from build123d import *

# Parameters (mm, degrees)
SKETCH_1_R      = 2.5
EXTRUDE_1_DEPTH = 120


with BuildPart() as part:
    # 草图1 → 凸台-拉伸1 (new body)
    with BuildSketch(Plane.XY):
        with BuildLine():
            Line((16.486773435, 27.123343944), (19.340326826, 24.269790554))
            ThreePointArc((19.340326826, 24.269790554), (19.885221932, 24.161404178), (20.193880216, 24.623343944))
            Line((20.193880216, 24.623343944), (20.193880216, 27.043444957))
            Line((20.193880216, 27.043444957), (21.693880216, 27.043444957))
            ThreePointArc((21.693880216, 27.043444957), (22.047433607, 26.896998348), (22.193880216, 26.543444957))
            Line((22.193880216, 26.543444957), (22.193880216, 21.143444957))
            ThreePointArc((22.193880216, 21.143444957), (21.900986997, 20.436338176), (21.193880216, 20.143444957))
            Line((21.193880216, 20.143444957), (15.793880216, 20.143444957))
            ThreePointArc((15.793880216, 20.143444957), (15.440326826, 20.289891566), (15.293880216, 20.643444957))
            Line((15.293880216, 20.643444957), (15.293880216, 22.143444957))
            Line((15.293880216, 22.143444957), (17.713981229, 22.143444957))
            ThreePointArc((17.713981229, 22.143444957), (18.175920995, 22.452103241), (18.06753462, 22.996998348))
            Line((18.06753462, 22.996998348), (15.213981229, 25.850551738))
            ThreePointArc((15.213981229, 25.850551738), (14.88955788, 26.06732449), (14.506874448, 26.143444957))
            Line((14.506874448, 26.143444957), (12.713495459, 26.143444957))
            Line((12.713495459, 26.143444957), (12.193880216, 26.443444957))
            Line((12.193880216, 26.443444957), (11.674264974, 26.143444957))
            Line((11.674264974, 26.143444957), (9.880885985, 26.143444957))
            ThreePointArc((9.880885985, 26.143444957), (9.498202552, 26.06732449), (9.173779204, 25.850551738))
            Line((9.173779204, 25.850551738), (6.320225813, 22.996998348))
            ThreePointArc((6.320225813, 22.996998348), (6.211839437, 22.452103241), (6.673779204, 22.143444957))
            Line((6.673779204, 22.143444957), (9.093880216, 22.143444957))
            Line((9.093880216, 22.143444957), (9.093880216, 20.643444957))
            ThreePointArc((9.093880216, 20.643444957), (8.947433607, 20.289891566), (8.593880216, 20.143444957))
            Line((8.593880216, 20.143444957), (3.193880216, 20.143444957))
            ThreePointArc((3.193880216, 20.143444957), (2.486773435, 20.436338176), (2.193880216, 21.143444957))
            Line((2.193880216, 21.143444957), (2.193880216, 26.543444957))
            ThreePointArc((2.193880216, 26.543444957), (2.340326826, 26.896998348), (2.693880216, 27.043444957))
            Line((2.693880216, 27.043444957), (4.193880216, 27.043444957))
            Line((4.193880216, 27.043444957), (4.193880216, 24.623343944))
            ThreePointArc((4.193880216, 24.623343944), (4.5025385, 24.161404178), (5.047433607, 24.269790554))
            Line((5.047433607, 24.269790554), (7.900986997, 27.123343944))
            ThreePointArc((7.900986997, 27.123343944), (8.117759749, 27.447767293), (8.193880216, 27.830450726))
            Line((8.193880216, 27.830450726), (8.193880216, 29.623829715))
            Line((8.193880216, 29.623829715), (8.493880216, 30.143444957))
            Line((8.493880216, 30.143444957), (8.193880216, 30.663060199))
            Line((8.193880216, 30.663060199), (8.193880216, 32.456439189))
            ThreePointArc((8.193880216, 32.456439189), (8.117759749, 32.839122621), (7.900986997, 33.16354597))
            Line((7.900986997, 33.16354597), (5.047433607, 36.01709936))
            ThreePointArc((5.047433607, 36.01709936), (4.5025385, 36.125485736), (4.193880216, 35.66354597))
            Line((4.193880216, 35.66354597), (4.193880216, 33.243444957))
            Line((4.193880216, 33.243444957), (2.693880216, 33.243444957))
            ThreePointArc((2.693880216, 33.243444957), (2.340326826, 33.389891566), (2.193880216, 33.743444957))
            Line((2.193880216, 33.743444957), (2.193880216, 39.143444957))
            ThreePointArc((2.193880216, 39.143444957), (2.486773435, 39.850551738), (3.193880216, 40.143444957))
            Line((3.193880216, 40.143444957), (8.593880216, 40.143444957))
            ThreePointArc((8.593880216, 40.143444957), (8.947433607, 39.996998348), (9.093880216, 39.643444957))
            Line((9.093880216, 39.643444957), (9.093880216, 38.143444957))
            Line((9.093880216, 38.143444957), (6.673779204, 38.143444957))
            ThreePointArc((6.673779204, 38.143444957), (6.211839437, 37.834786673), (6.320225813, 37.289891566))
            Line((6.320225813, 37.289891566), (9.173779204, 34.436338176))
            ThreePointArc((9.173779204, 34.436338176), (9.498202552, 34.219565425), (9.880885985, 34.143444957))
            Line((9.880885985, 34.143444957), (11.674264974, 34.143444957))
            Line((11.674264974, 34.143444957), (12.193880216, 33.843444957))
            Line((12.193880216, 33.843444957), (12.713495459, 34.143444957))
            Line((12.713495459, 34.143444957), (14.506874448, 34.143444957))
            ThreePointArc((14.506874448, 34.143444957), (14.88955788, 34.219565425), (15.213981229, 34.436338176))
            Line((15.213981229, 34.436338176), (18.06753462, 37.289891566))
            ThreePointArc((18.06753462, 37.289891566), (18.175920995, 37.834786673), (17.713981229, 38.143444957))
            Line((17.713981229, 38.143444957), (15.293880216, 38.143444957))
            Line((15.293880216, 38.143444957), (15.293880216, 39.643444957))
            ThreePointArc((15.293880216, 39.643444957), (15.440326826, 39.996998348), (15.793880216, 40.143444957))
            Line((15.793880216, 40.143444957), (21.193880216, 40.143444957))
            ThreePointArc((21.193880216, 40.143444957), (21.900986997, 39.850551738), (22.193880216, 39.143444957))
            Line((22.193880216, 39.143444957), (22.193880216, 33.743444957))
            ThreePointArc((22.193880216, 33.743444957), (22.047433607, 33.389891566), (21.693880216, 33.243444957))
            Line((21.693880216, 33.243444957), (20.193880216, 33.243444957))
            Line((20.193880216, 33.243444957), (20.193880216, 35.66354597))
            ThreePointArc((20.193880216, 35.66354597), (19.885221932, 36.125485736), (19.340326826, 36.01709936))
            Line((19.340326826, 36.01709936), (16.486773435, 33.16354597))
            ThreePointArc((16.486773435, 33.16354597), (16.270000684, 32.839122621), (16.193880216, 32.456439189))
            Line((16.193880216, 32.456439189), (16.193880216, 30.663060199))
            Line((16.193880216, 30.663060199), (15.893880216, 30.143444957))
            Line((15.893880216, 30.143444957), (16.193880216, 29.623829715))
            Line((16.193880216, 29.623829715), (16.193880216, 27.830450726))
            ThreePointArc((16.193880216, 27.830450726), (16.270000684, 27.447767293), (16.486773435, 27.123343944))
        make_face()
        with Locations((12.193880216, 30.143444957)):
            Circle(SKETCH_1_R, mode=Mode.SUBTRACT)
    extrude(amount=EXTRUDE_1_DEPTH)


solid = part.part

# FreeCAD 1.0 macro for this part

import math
import FreeCAD as App
import Part
import Sketcher
from FreeCAD import Vector
Q = App.Units.Quantity

doc = App.newDocument("Part")
body = doc.addObject("PartDesign::Body", "Body")

# Sketch on XY plane
sketch1 = body.newObject("Sketcher::SketchObject", "Sketch")
sketch1.AttachmentSupport = (doc.getObject("XY_Plane"), [""])
sketch1.MapMode = "FlatFace"
sketch1.addGeometry(Part.LineSegment(Vector(19.34, 24.27, 0), Vector(16.49, 27.12, 0)), False)
sketch1.addGeometry(Part.ArcOfCircle(Part.Circle(Vector(17.19, 27.83, 0), Vector(0, 0, 1), 1), math.radians(-180), math.radians(-135)), False)
sketch1.addGeometry(Part.LineSegment(Vector(16.19, 27.83, 0), Vector(16.19, 29.62, 0)), False)
sketch1.addGeometry(Part.LineSegment(Vector(16.19, 29.62, 0), Vector(15.89, 30.14, 0)), False)
sketch1.addGeometry(Part.LineSegment(Vector(15.89, 30.14, 0), Vector(16.19, 30.66, 0)), False)
sketch1.addGeometry(Part.LineSegment(Vector(16.19, 30.66, 0), Vector(16.19, 32.46, 0)), False)
sketch1.addGeometry(Part.ArcOfCircle(Part.Circle(Vector(17.19, 32.46, 0), Vector(0, 0, 1), 1), math.radians(135), math.radians(180)), False)
sketch1.addGeometry(Part.LineSegment(Vector(16.49, 33.16, 0), Vector(19.34, 36.02, 0)), False)
sketch1.addGeometry(Part.ArcOfCircle(Part.Circle(Vector(19.69, 35.66, 0), Vector(0, 0, 1), 0.5), math.radians(0), math.radians(135)), False)
sketch1.addGeometry(Part.LineSegment(Vector(20.19, 35.66, 0), Vector(20.19, 33.24, 0)), False)
sketch1.addGeometry(Part.LineSegment(Vector(20.19, 33.24, 0), Vector(21.69, 33.24, 0)), False)
sketch1.addGeometry(Part.ArcOfCircle(Part.Circle(Vector(21.69, 33.74, 0), Vector(0, 0, 1), 0.5), math.radians(-90), math.radians(0)), False)
sketch1.addGeometry(Part.LineSegment(Vector(22.19, 33.74, 0), Vector(22.19, 39.14, 0)), False)
sketch1.addGeometry(Part.ArcOfCircle(Part.Circle(Vector(21.19, 39.14, 0), Vector(0, 0, 1), 1), math.radians(0), math.radians(90)), False)
sketch1.addGeometry(Part.LineSegment(Vector(21.19, 40.14, 0), Vector(15.79, 40.14, 0)), False)
sketch1.addGeometry(Part.ArcOfCircle(Part.Circle(Vector(15.79, 39.64, 0), Vector(0, 0, 1), 0.5), math.radians(90), math.radians(180)), False)
sketch1.addGeometry(Part.LineSegment(Vector(15.29, 39.64, 0), Vector(15.29, 38.14, 0)), False)
sketch1.addGeometry(Part.LineSegment(Vector(15.29, 38.14, 0), Vector(17.71, 38.14, 0)), False)
sketch1.addGeometry(Part.ArcOfCircle(Part.Circle(Vector(17.71, 37.64, 0), Vector(0, 0, 1), 0.5), math.radians(-45), math.radians(90)), False)
sketch1.addGeometry(Part.LineSegment(Vector(18.07, 37.29, 0), Vector(15.21, 34.44, 0)), False)
sketch1.addGeometry(Part.ArcOfCircle(Part.Circle(Vector(14.51, 35.14, 0), Vector(0, 0, 1), 1), math.radians(-90), math.radians(-45)), False)
sketch1.addGeometry(Part.LineSegment(Vector(14.51, 34.14, 0), Vector(12.71, 34.14, 0)), False)
sketch1.addGeometry(Part.LineSegment(Vector(12.71, 34.14, 0), Vector(12.19, 33.84, 0)), False)
sketch1.addGeometry(Part.LineSegment(Vector(12.19, 33.84, 0), Vector(11.67, 34.14, 0)), False)
sketch1.addGeometry(Part.LineSegment(Vector(11.67, 34.14, 0), Vector(9.88, 34.14, 0)), False)
sketch1.addGeometry(Part.ArcOfCircle(Part.Circle(Vector(9.88, 35.14, 0), Vector(0, 0, 1), 1), math.radians(-135), math.radians(-90)), False)
sketch1.addGeometry(Part.LineSegment(Vector(9.17, 34.44, 0), Vector(6.32, 37.29, 0)), False)
sketch1.addGeometry(Part.ArcOfCircle(Part.Circle(Vector(6.67, 37.64, 0), Vector(0, 0, 1), 0.5), math.radians(90), math.radians(225)), False)
sketch1.addGeometry(Part.LineSegment(Vector(6.67, 38.14, 0), Vector(9.09, 38.14, 0)), False)
sketch1.addGeometry(Part.LineSegment(Vector(9.09, 38.14, 0), Vector(9.09, 39.64, 0)), False)
sketch1.addGeometry(Part.ArcOfCircle(Part.Circle(Vector(8.59, 39.64, 0), Vector(0, 0, 1), 0.5), math.radians(0), math.radians(90)), False)
sketch1.addGeometry(Part.LineSegment(Vector(8.59, 40.14, 0), Vector(3.19, 40.14, 0)), False)
sketch1.addGeometry(Part.ArcOfCircle(Part.Circle(Vector(3.19, 39.14, 0), Vector(0, 0, 1), 1), math.radians(90), math.radians(180)), False)
sketch1.addGeometry(Part.LineSegment(Vector(2.19, 39.14, 0), Vector(2.19, 33.74, 0)), False)
sketch1.addGeometry(Part.ArcOfCircle(Part.Circle(Vector(2.69, 33.74, 0), Vector(0, 0, 1), 0.5), math.radians(180), math.radians(270)), False)
sketch1.addGeometry(Part.LineSegment(Vector(2.69, 33.24, 0), Vector(4.19, 33.24, 0)), False)
sketch1.addGeometry(Part.LineSegment(Vector(4.19, 33.24, 0), Vector(4.19, 35.66, 0)), False)
sketch1.addGeometry(Part.ArcOfCircle(Part.Circle(Vector(4.69, 35.66, 0), Vector(0, 0, 1), 0.5), math.radians(45), math.radians(180)), False)
sketch1.addGeometry(Part.LineSegment(Vector(5.05, 36.02, 0), Vector(7.9, 33.16, 0)), False)
sketch1.addGeometry(Part.ArcOfCircle(Part.Circle(Vector(7.19, 32.46, 0), Vector(0, 0, 1), 1), math.radians(0), math.radians(45)), False)
sketch1.addGeometry(Part.LineSegment(Vector(8.19, 32.46, 0), Vector(8.19, 30.66, 0)), False)
sketch1.addGeometry(Part.LineSegment(Vector(8.19, 30.66, 0), Vector(8.49, 30.14, 0)), False)
sketch1.addGeometry(Part.LineSegment(Vector(8.49, 30.14, 0), Vector(8.19, 29.62, 0)), False)
sketch1.addGeometry(Part.LineSegment(Vector(8.19, 29.62, 0), Vector(8.19, 27.83, 0)), False)
sketch1.addGeometry(Part.ArcOfCircle(Part.Circle(Vector(7.19, 27.83, 0), Vector(0, 0, 1), 1), math.radians(-45), math.radians(0)), False)
sketch1.addGeometry(Part.LineSegment(Vector(7.9, 27.12, 0), Vector(5.05, 24.27, 0)), False)
sketch1.addGeometry(Part.ArcOfCircle(Part.Circle(Vector(4.69, 24.62, 0), Vector(0, 0, 1), 0.5), math.radians(180), math.radians(315)), False)
sketch1.addGeometry(Part.LineSegment(Vector(4.19, 24.62, 0), Vector(4.19, 27.04, 0)), False)
sketch1.addGeometry(Part.LineSegment(Vector(4.19, 27.04, 0), Vector(2.69, 27.04, 0)), False)
sketch1.addGeometry(Part.ArcOfCircle(Part.Circle(Vector(2.69, 26.54, 0), Vector(0, 0, 1), 0.5), math.radians(90), math.radians(180)), False)
sketch1.addGeometry(Part.LineSegment(Vector(2.19, 26.54, 0), Vector(2.19, 21.14, 0)), False)
sketch1.addGeometry(Part.ArcOfCircle(Part.Circle(Vector(3.19, 21.14, 0), Vector(0, 0, 1), 1), math.radians(-180), math.radians(-90)), False)
sketch1.addGeometry(Part.LineSegment(Vector(3.19, 20.14, 0), Vector(8.59, 20.14, 0)), False)
sketch1.addGeometry(Part.ArcOfCircle(Part.Circle(Vector(8.59, 20.64, 0), Vector(0, 0, 1), 0.5), math.radians(-90), math.radians(0)), False)
sketch1.addGeometry(Part.LineSegment(Vector(9.09, 20.64, 0), Vector(9.09, 22.14, 0)), False)
sketch1.addGeometry(Part.LineSegment(Vector(9.09, 22.14, 0), Vector(6.67, 22.14, 0)), False)
sketch1.addGeometry(Part.ArcOfCircle(Part.Circle(Vector(6.67, 22.64, 0), Vector(0, 0, 1), 0.5), math.radians(135), math.radians(270)), False)
sketch1.addGeometry(Part.LineSegment(Vector(6.32, 23, 0), Vector(9.17, 25.85, 0)), False)
sketch1.addGeometry(Part.ArcOfCircle(Part.Circle(Vector(9.88, 25.14, 0), Vector(0, 0, 1), 1), math.radians(90), math.radians(135)), False)
sketch1.addGeometry(Part.LineSegment(Vector(9.88, 26.14, 0), Vector(11.67, 26.14, 0)), False)
sketch1.addGeometry(Part.LineSegment(Vector(11.67, 26.14, 0), Vector(12.19, 26.44, 0)), False)
sketch1.addGeometry(Part.LineSegment(Vector(12.19, 26.44, 0), Vector(12.71, 26.14, 0)), False)
sketch1.addGeometry(Part.LineSegment(Vector(12.71, 26.14, 0), Vector(14.51, 26.14, 0)), False)
sketch1.addGeometry(Part.ArcOfCircle(Part.Circle(Vector(14.51, 25.14, 0), Vector(0, 0, 1), 1), math.radians(45), math.radians(90)), False)
sketch1.addGeometry(Part.LineSegment(Vector(15.21, 25.85, 0), Vector(18.07, 23, 0)), False)
sketch1.addGeometry(Part.ArcOfCircle(Part.Circle(Vector(17.71, 22.64, 0), Vector(0, 0, 1), 0.5), math.radians(-90), math.radians(45)), False)
sketch1.addGeometry(Part.LineSegment(Vector(17.71, 22.14, 0), Vector(15.29, 22.14, 0)), False)
sketch1.addGeometry(Part.LineSegment(Vector(15.29, 22.14, 0), Vector(15.29, 20.64, 0)), False)
sketch1.addGeometry(Part.ArcOfCircle(Part.Circle(Vector(15.79, 20.64, 0), Vector(0, 0, 1), 0.5), math.radians(180), math.radians(270)), False)
sketch1.addGeometry(Part.LineSegment(Vector(15.79, 20.14, 0), Vector(21.19, 20.14, 0)), False)
sketch1.addGeometry(Part.ArcOfCircle(Part.Circle(Vector(21.19, 21.14, 0), Vector(0, 0, 1), 1), math.radians(-90), math.radians(0)), False)
sketch1.addGeometry(Part.LineSegment(Vector(22.19, 21.14, 0), Vector(22.19, 26.54, 0)), False)
sketch1.addGeometry(Part.ArcOfCircle(Part.Circle(Vector(21.69, 26.54, 0), Vector(0, 0, 1), 0.5), math.radians(0), math.radians(90)), False)
sketch1.addGeometry(Part.LineSegment(Vector(21.69, 27.04, 0), Vector(20.19, 27.04, 0)), False)
sketch1.addGeometry(Part.LineSegment(Vector(20.19, 27.04, 0), Vector(20.19, 24.62, 0)), False)
sketch1.addGeometry(Part.ArcOfCircle(Part.Circle(Vector(19.69, 24.62, 0), Vector(0, 0, 1), 0.5), math.radians(-135), math.radians(0)), False)
sketch1.addGeometry(Part.Circle(Vector(12.19, 30.14, 0), Vector(0, 0, 1), 2.5), False)
sketch1.addConstraint(Sketcher.Constraint("Tangent", 0, 2, 1, 2))
sketch1.addConstraint(Sketcher.Constraint("Tangent", 1, 1, 2, 1))
sketch1.addConstraint(Sketcher.Constraint("Coincident", 2, 2, 3, 1))
sketch1.addConstraint(Sketcher.Constraint("Coincident", 3, 2, 4, 1))
sketch1.addConstraint(Sketcher.Constraint("Coincident", 4, 2, 5, 1))
sketch1.addConstraint(Sketcher.Constraint("Tangent", 5, 2, 6, 2))
sketch1.addConstraint(Sketcher.Constraint("Tangent", 6, 1, 7, 1))
sketch1.addConstraint(Sketcher.Constraint("Tangent", 7, 2, 8, 2))
sketch1.addConstraint(Sketcher.Constraint("Tangent", 8, 1, 9, 1))
sketch1.addConstraint(Sketcher.Constraint("Coincident", 9, 2, 10, 1))
sketch1.addConstraint(Sketcher.Constraint("Tangent", 10, 2, 11, 1))
sketch1.addConstraint(Sketcher.Constraint("Tangent", 11, 2, 12, 1))
sketch1.addConstraint(Sketcher.Constraint("Tangent", 12, 2, 13, 1))
sketch1.addConstraint(Sketcher.Constraint("Tangent", 13, 2, 14, 1))
sketch1.addConstraint(Sketcher.Constraint("Tangent", 14, 2, 15, 1))
sketch1.addConstraint(Sketcher.Constraint("Tangent", 15, 2, 16, 1))
sketch1.addConstraint(Sketcher.Constraint("Coincident", 16, 2, 17, 1))
sketch1.addConstraint(Sketcher.Constraint("Tangent", 17, 2, 18, 2))
sketch1.addConstraint(Sketcher.Constraint("Tangent", 18, 1, 19, 1))
sketch1.addConstraint(Sketcher.Constraint("Tangent", 19, 2, 20, 2))
sketch1.addConstraint(Sketcher.Constraint("Tangent", 20, 1, 21, 1))
sketch1.addConstraint(Sketcher.Constraint("Coincident", 21, 2, 22, 1))
sketch1.addConstraint(Sketcher.Constraint("Coincident", 22, 2, 23, 1))
sketch1.addConstraint(Sketcher.Constraint("Coincident", 23, 2, 24, 1))
sketch1.addConstraint(Sketcher.Constraint("Tangent", 24, 2, 25, 2))
sketch1.addConstraint(Sketcher.Constraint("Tangent", 25, 1, 26, 1))
sketch1.addConstraint(Sketcher.Constraint("Tangent", 26, 2, 27, 2))
sketch1.addConstraint(Sketcher.Constraint("Tangent", 27, 1, 28, 1))
sketch1.addConstraint(Sketcher.Constraint("Coincident", 28, 2, 29, 1))
sketch1.addConstraint(Sketcher.Constraint("Tangent", 29, 2, 30, 1))
sketch1.addConstraint(Sketcher.Constraint("Tangent", 30, 2, 31, 1))
sketch1.addConstraint(Sketcher.Constraint("Tangent", 31, 2, 32, 1))
sketch1.addConstraint(Sketcher.Constraint("Tangent", 32, 2, 33, 1))
sketch1.addConstraint(Sketcher.Constraint("Tangent", 33, 2, 34, 1))
sketch1.addConstraint(Sketcher.Constraint("Tangent", 34, 2, 35, 1))
sketch1.addConstraint(Sketcher.Constraint("Coincident", 35, 2, 36, 1))
sketch1.addConstraint(Sketcher.Constraint("Tangent", 36, 2, 37, 2))
sketch1.addConstraint(Sketcher.Constraint("Tangent", 37, 1, 38, 1))
sketch1.addConstraint(Sketcher.Constraint("Tangent", 38, 2, 39, 2))
sketch1.addConstraint(Sketcher.Constraint("Tangent", 39, 1, 40, 1))
sketch1.addConstraint(Sketcher.Constraint("Coincident", 40, 2, 41, 1))
sketch1.addConstraint(Sketcher.Constraint("Coincident", 41, 2, 42, 1))
sketch1.addConstraint(Sketcher.Constraint("Coincident", 42, 2, 43, 1))
sketch1.addConstraint(Sketcher.Constraint("Tangent", 43, 2, 44, 2))
sketch1.addConstraint(Sketcher.Constraint("Tangent", 44, 1, 45, 1))
sketch1.addConstraint(Sketcher.Constraint("Tangent", 45, 2, 46, 2))
sketch1.addConstraint(Sketcher.Constraint("Tangent", 46, 1, 47, 1))
sketch1.addConstraint(Sketcher.Constraint("Coincident", 47, 2, 48, 1))
sketch1.addConstraint(Sketcher.Constraint("Tangent", 48, 2, 49, 1))
sketch1.addConstraint(Sketcher.Constraint("Tangent", 49, 2, 50, 1))
sketch1.addConstraint(Sketcher.Constraint("Tangent", 50, 2, 51, 1))
sketch1.addConstraint(Sketcher.Constraint("Tangent", 51, 2, 52, 1))
sketch1.addConstraint(Sketcher.Constraint("Tangent", 52, 2, 53, 1))
sketch1.addConstraint(Sketcher.Constraint("Tangent", 53, 2, 54, 1))
sketch1.addConstraint(Sketcher.Constraint("Coincident", 54, 2, 55, 1))
sketch1.addConstraint(Sketcher.Constraint("Tangent", 55, 2, 56, 2))
sketch1.addConstraint(Sketcher.Constraint("Tangent", 56, 1, 57, 1))
sketch1.addConstraint(Sketcher.Constraint("Tangent", 57, 2, 58, 2))
sketch1.addConstraint(Sketcher.Constraint("Tangent", 58, 1, 59, 1))
sketch1.addConstraint(Sketcher.Constraint("Coincident", 59, 2, 60, 1))
sketch1.addConstraint(Sketcher.Constraint("Coincident", 60, 2, 61, 1))
sketch1.addConstraint(Sketcher.Constraint("Coincident", 61, 2, 62, 1))
sketch1.addConstraint(Sketcher.Constraint("Tangent", 62, 2, 63, 2))
sketch1.addConstraint(Sketcher.Constraint("Tangent", 63, 1, 64, 1))
sketch1.addConstraint(Sketcher.Constraint("Tangent", 64, 2, 65, 2))
sketch1.addConstraint(Sketcher.Constraint("Tangent", 65, 1, 66, 1))
sketch1.addConstraint(Sketcher.Constraint("Coincident", 66, 2, 67, 1))
sketch1.addConstraint(Sketcher.Constraint("Tangent", 67, 2, 68, 1))
sketch1.addConstraint(Sketcher.Constraint("Tangent", 68, 2, 69, 1))
sketch1.addConstraint(Sketcher.Constraint("Tangent", 69, 2, 70, 1))
sketch1.addConstraint(Sketcher.Constraint("Tangent", 70, 2, 71, 1))
sketch1.addConstraint(Sketcher.Constraint("Tangent", 71, 2, 72, 1))
sketch1.addConstraint(Sketcher.Constraint("Tangent", 72, 2, 73, 1))
sketch1.addConstraint(Sketcher.Constraint("Coincident", 73, 2, 74, 1))
sketch1.addConstraint(Sketcher.Constraint("Tangent", 74, 2, 75, 2))
sketch1.addConstraint(Sketcher.Constraint("Tangent", 75, 1, 0, 1))
sketch1.addConstraint(Sketcher.Constraint("Vertical", 2))
sketch1.addConstraint(Sketcher.Constraint("Vertical", 5))
sketch1.addConstraint(Sketcher.Constraint("Vertical", 9))
sketch1.addConstraint(Sketcher.Constraint("Horizontal", 10))
sketch1.addConstraint(Sketcher.Constraint("Vertical", 12))
sketch1.addConstraint(Sketcher.Constraint("Horizontal", 14))
sketch1.addConstraint(Sketcher.Constraint("Vertical", 16))
sketch1.addConstraint(Sketcher.Constraint("Horizontal", 17))
sketch1.addConstraint(Sketcher.Constraint("Horizontal", 21))
sketch1.addConstraint(Sketcher.Constraint("Horizontal", 24))
sketch1.addConstraint(Sketcher.Constraint("Horizontal", 28))
sketch1.addConstraint(Sketcher.Constraint("Vertical", 29))
sketch1.addConstraint(Sketcher.Constraint("Horizontal", 31))
sketch1.addConstraint(Sketcher.Constraint("Vertical", 33))
sketch1.addConstraint(Sketcher.Constraint("Horizontal", 35))
sketch1.addConstraint(Sketcher.Constraint("Vertical", 36))
sketch1.addConstraint(Sketcher.Constraint("Vertical", 40))
sketch1.addConstraint(Sketcher.Constraint("Vertical", 43))
sketch1.addConstraint(Sketcher.Constraint("Vertical", 47))
sketch1.addConstraint(Sketcher.Constraint("Horizontal", 48))
sketch1.addConstraint(Sketcher.Constraint("Vertical", 50))
sketch1.addConstraint(Sketcher.Constraint("Horizontal", 52))
sketch1.addConstraint(Sketcher.Constraint("Vertical", 54))
sketch1.addConstraint(Sketcher.Constraint("Horizontal", 55))
sketch1.addConstraint(Sketcher.Constraint("Horizontal", 59))
sketch1.addConstraint(Sketcher.Constraint("Horizontal", 62))
sketch1.addConstraint(Sketcher.Constraint("Horizontal", 66))
sketch1.addConstraint(Sketcher.Constraint("Vertical", 67))
sketch1.addConstraint(Sketcher.Constraint("Horizontal", 69))
sketch1.addConstraint(Sketcher.Constraint("Vertical", 71))
sketch1.addConstraint(Sketcher.Constraint("Horizontal", 73))
sketch1.addConstraint(Sketcher.Constraint("Vertical", 74))
sketch1.addConstraint(Sketcher.Constraint("Equal", 1, 6))
sketch1.addConstraint(Sketcher.Constraint("Equal", 8, 11))
sketch1.addConstraint(Sketcher.Constraint("Equal", 6, 13))
sketch1.addConstraint(Sketcher.Constraint("Equal", 11, 15))
sketch1.addConstraint(Sketcher.Constraint("Equal", 15, 18))
sketch1.addConstraint(Sketcher.Constraint("Equal", 13, 20))
sketch1.addConstraint(Sketcher.Constraint("Equal", 20, 25))
sketch1.addConstraint(Sketcher.Constraint("Equal", 18, 27))
sketch1.addConstraint(Sketcher.Constraint("Equal", 27, 30))
sketch1.addConstraint(Sketcher.Constraint("Equal", 25, 32))
sketch1.addConstraint(Sketcher.Constraint("Equal", 30, 34))
sketch1.addConstraint(Sketcher.Constraint("Equal", 34, 37))
sketch1.addConstraint(Sketcher.Constraint("Equal", 32, 39))
sketch1.addConstraint(Sketcher.Constraint("Equal", 39, 44))
sketch1.addConstraint(Sketcher.Constraint("Equal", 37, 46))
sketch1.addConstraint(Sketcher.Constraint("Equal", 46, 49))
sketch1.addConstraint(Sketcher.Constraint("Equal", 44, 51))
sketch1.addConstraint(Sketcher.Constraint("Equal", 49, 53))
sketch1.addConstraint(Sketcher.Constraint("Equal", 53, 56))
sketch1.addConstraint(Sketcher.Constraint("Equal", 51, 58))
sketch1.addConstraint(Sketcher.Constraint("Equal", 58, 63))
sketch1.addConstraint(Sketcher.Constraint("Equal", 56, 65))
sketch1.addConstraint(Sketcher.Constraint("Equal", 65, 68))
sketch1.addConstraint(Sketcher.Constraint("Equal", 63, 70))
sketch1.addConstraint(Sketcher.Constraint("Equal", 68, 72))
sketch1.addConstraint(Sketcher.Constraint("Equal", 72, 75))
sketch1.addConstraint(Sketcher.Constraint("Perpendicular", 0, 7))
sketch1.addConstraint(Sketcher.Constraint("Parallel", 7, 19))
sketch1.addConstraint(Sketcher.Constraint("Perpendicular", 3, 22))
sketch1.addConstraint(Sketcher.Constraint("Perpendicular", 4, 23))
sketch1.addConstraint(Sketcher.Constraint("Perpendicular", 19, 26))
sketch1.addConstraint(Sketcher.Constraint("Parallel", 26, 38))
sketch1.addConstraint(Sketcher.Constraint("Perpendicular", 22, 41))
sketch1.addConstraint(Sketcher.Constraint("Perpendicular", 23, 42))
sketch1.addConstraint(Sketcher.Constraint("Perpendicular", 38, 45))
sketch1.addConstraint(Sketcher.Constraint("Parallel", 45, 57))
sketch1.addConstraint(Sketcher.Constraint("Perpendicular", 41, 60))
sketch1.addConstraint(Sketcher.Constraint("Perpendicular", 42, 61))
sketch1.addConstraint(Sketcher.Constraint("Perpendicular", 57, 64))
sketch1.addConstraint(Sketcher.Constraint("Horizontal", 20, 3, 25, 3))
sketch1.addConstraint(Sketcher.Constraint("Horizontal", 18, 3, 27, 3))
sketch1.addConstraint(Sketcher.Constraint("Horizontal", 15, 3, 30, 3))
sketch1.addConstraint(Sketcher.Constraint("Horizontal", 11, 3, 34, 3))
sketch1.addConstraint(Sketcher.Constraint("Horizontal", 8, 3, 37, 3))
sketch1.addConstraint(Sketcher.Constraint("Horizontal", 6, 3, 39, 3))
sketch1.addConstraint(Sketcher.Constraint("Horizontal", 1, 3, 44, 3))
sketch1.addConstraint(Sketcher.Constraint("Horizontal", 58, 3, 63, 3))
sketch1.addConstraint(Sketcher.Constraint("Horizontal", 56, 3, 65, 3))
sketch1.addConstraint(Sketcher.Constraint("Horizontal", 53, 3, 68, 3))
sketch1.addConstraint(Sketcher.Constraint("Horizontal", 49, 3, 72, 3))
sketch1.addConstraint(Sketcher.Constraint("Horizontal", 46, 3, 75, 3))
sketch1.addConstraint(Sketcher.Constraint("Horizontal", 76, 3, 3, 2))
sketch1.addConstraint(Sketcher.Constraint("Horizontal", 19, 2, 25, 1))
sketch1.addConstraint(Sketcher.Constraint("Horizontal", 4, 2, 40, 2))
sketch1.addConstraint(Sketcher.Constraint("Horizontal", 3, 2, 41, 2))
sketch1.addConstraint(Sketcher.Constraint("Horizontal", 2, 2, 42, 2))
sketch1.addConstraint(Sketcher.Constraint("Vertical", 1, 3, 6, 3))
sketch1.addConstraint(Sketcher.Constraint("Vertical", 39, 3, 44, 3))
sketch1.addConstraint(Sketcher.Constraint("Vertical", 37, 3, 46, 3))
sketch1.addConstraint(Sketcher.Constraint("Vertical", 34, 3, 49, 3))
sketch1.addConstraint(Sketcher.Constraint("Vertical", 30, 3, 53, 3))
sketch1.addConstraint(Sketcher.Constraint("Vertical", 27, 3, 56, 3))
sketch1.addConstraint(Sketcher.Constraint("Vertical", 25, 3, 58, 3))
sketch1.addConstraint(Sketcher.Constraint("Vertical", 20, 3, 63, 3))
sketch1.addConstraint(Sketcher.Constraint("Vertical", 15, 3, 68, 3))
sketch1.addConstraint(Sketcher.Constraint("Vertical", 13, 3, 70, 3))
sketch1.addConstraint(Sketcher.Constraint("Vertical", 76, 3, 22, 2))
sketch1.addConstraint(Sketcher.Constraint("Vertical", 23, 2, 59, 2))
sketch1.addConstraint(Sketcher.Constraint("Vertical", 22, 2, 60, 2))
sketch1.addConstraint(Sketcher.Constraint("Equal", 21, 24))
sketch1.addConstraint(Sketcher.Constraint("Equal", 17, 28))
sketch1.addConstraint(Sketcher.Constraint("Equal", 14, 31))
sketch1.addConstraint(Sketcher.Constraint("Equal", 10, 35))
sketch1.addConstraint(Sketcher.Constraint("Equal", 62, 2))
sketch1.addConstraint(Sketcher.Constraint("Equal", 2, 5))
sketch1.addConstraint(Sketcher.Constraint("Equal", 66, 9))
sketch1.addConstraint(Sketcher.Constraint("Equal", 69, 12))
sketch1.addConstraint(Sketcher.Constraint("Equal", 73, 16))
sketch1.addConstraint(Sketcher.Constraint("Equal", 36, 47))
sketch1.addConstraint(Sketcher.Constraint("Equal", 33, 50))
sketch1.addConstraint(Sketcher.Constraint("Equal", 29, 54))
sketch1.addConstraint(Sketcher.Constraint("Equal", 7, 19))
sketch1.addConstraint(Sketcher.Constraint("Equal", 4, 22))
sketch1.addConstraint(Sketcher.Constraint("Diameter", 76, 5.0))
sketch1.addConstraint(Sketcher.Constraint("Radius", 1, 1.0))
sketch1.addConstraint(Sketcher.Constraint("Radius", 8, 0.5))
sketch1.addConstraint(Sketcher.Constraint("Angle", 3, Q("120 deg")))
sketch1.addConstraint(Sketcher.Constraint("DistanceX", 10, 1, 10, 2, 1.5))
sketch1.addConstraint(Sketcher.Constraint("DistanceX", 14, 2, 14, 1, 5.4))
sketch1.addConstraint(Sketcher.Constraint("Distance", 3, 0.6))
sketch1.addConstraint(Sketcher.Constraint("DistanceX", 17, 1, 17, 2, 2.420101))
sketch1.addConstraint(Sketcher.Constraint("DistanceY", -1, 1, 56, 1, 22.996998))
sketch1.addConstraint(Sketcher.Constraint("DistanceX", 21, 2, 21, 1, 1.793379))
sketch1.addConstraint(Sketcher.Constraint("DistanceY", -1, 1, 7, 2, 36.017099))
sketch1.addConstraint(Sketcher.Constraint("DistanceX", -1, 1, 1, 3, 17.19388))
pad1 = body.newObject("PartDesign::Pad", "Pad")
pad1.Profile = sketch1
pad1.Length = 120

doc.recompute()
